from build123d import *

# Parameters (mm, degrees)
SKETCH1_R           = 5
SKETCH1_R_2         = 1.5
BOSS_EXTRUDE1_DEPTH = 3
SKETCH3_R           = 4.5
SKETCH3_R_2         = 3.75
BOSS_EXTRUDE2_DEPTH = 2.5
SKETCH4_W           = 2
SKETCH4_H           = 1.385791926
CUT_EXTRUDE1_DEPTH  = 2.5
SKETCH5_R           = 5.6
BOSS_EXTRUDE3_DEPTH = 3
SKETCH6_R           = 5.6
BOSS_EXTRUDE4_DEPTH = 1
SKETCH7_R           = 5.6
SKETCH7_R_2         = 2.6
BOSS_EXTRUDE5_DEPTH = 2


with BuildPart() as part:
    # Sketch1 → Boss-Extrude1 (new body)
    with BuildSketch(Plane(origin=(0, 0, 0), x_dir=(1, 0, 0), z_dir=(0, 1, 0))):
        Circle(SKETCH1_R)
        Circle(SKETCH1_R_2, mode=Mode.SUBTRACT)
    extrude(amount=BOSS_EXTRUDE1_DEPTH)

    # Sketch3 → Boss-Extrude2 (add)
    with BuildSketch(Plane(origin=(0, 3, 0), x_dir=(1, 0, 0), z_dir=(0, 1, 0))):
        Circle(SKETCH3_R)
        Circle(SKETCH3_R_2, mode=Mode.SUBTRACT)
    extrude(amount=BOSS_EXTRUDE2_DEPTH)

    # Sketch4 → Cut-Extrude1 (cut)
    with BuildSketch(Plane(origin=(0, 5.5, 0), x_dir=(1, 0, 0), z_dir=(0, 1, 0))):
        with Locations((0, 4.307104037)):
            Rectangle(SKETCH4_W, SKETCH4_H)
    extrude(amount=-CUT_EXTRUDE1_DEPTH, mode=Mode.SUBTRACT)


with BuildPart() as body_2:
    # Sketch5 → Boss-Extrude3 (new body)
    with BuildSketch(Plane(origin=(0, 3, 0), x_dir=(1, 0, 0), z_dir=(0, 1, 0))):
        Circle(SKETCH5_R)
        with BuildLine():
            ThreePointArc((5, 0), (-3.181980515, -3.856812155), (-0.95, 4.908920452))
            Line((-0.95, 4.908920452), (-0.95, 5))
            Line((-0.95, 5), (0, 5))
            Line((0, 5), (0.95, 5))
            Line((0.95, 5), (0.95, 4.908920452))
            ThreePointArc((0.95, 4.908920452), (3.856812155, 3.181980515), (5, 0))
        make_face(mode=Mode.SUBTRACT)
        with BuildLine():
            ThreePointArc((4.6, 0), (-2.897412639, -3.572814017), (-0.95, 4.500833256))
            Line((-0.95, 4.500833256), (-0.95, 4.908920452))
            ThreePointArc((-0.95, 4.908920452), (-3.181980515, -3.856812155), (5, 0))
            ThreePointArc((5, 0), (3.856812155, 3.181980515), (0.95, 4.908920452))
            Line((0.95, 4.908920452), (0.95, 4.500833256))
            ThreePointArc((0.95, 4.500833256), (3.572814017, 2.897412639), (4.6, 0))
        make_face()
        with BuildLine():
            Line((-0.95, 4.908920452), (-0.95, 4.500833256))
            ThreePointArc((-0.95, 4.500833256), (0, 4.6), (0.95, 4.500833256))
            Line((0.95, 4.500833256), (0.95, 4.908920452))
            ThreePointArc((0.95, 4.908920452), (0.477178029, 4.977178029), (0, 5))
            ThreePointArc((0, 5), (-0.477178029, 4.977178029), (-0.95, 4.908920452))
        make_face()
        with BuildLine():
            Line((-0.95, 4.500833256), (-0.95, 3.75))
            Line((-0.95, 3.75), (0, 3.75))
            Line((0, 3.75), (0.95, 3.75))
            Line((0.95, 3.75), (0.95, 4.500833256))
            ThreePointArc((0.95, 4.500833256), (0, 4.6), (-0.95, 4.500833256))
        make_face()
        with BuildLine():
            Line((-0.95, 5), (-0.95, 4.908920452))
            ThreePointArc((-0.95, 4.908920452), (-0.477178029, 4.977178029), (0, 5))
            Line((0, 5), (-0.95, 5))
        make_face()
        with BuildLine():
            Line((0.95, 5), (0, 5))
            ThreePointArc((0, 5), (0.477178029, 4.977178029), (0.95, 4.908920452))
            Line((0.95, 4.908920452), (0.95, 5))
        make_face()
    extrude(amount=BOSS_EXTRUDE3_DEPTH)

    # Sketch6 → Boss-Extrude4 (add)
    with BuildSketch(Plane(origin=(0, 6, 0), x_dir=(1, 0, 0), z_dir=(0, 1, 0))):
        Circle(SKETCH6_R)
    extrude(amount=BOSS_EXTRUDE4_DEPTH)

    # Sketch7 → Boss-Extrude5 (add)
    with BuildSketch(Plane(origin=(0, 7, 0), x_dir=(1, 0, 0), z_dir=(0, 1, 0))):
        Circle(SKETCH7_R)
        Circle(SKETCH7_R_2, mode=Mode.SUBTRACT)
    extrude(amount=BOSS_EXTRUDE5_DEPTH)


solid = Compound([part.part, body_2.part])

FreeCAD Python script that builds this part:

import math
import FreeCAD as App
import Part
import Sketcher

V = App.Vector
Q = App.Units.Quantity

doc = App.newDocument("Part")
body = doc.addObject("PartDesign::Body", "Body")

sketch1 = doc.addObject("Sketcher::SketchObject", "Sketch")
body.addObject(sketch1)
sketch1.AttachmentSupport = (doc.XZ_Plane, [""])
sketch1.MapMode = "FlatFace"
sketch1.addGeometry(Part.Circle(V(0, 0, 0), V(0, 0, 1), 5), False)
sketch1.addGeometry(Part.Circle(V(0, 0, 0), V(0, 0, 1), 1.5), False)
sketch1.addConstraint(Sketcher.Constraint("Coincident", 0, 3, -1, 1))
sketch1.addConstraint(Sketcher.Constraint("Coincident", 1, 3, -1, 1))
sketch1.addConstraint(Sketcher.Constraint("Diameter", 0, Q("10 mm")))
sketch1.addConstraint(Sketcher.Constraint("Diameter", 1, Q("3 mm")))
pad1 = doc.addObject("PartDesign::Pad", "Pad")
body.addObject(pad1)
pad1.Profile = sketch1
pad1.Length = 3
pad1.Reversed = True

sketch2 = doc.addObject("Sketcher::SketchObject", "Sketch001")
body.addObject(sketch2)
sketch2.AttachmentSupport = (doc.XZ_Plane, [""])
sketch2.MapMode = "FlatFace"
sketch2.AttachmentOffset = App.Placement(V(0, 0, -3), App.Rotation())
sketch2.addGeometry(Part.Circle(V(0, 0, 0), V(0, 0, 1), 4.5), False)
sketch2.addGeometry(Part.Circle(V(0, 0, 0), V(0, 0, 1), 3.8), False)
sketch2.addConstraint(Sketcher.Constraint("Coincident", 0, 3, -1, 1))
sketch2.addConstraint(Sketcher.Constraint("Coincident", 1, 3, -1, 1))
sketch2.addConstraint(Sketcher.Constraint("Diameter", 0, Q("9 mm")))
sketch2.addConstraint(Sketcher.Constraint("Diameter", 1, Q("7.5 mm")))
pad2 = doc.addObject("PartDesign::Pad", "Pad001")
body.addObject(pad2)
pad2.Profile = sketch2
pad2.Length = 2.5
pad2.Reversed = True

sketch3 = doc.addObject("Sketcher::SketchObject", "Sketch002")
body.addObject(sketch3)
sketch3.AttachmentSupport = (doc.XZ_Plane, [""])
sketch3.MapMode = "FlatFace"
sketch3.AttachmentOffset = App.Placement(V(0, 0, -5.5), App.Rotation())
sketch3.addGeometry(Part.LineSegment(V(-1, -5, 0), V(-1, -3.6, 0)), False)
sketch3.addGeometry(Part.LineSegment(V(-1, -3.6, 0), V(1, -3.6, 0)), False)
sketch3.addGeometry(Part.LineSegment(V(1, -3.6, 0), V(1, -5, 0)), False)
sketch3.addGeometry(Part.LineSegment(V(1, -5, 0), V(-1, -5, 0)), False)
sketch3.addConstraint(Sketcher.Constraint("Coincident", 0, 2, 1, 1))
sketch3.addConstraint(Sketcher.Constraint("Coincident", 1, 2, 2, 1))
sketch3.addConstraint(Sketcher.Constraint("Coincident", 2, 2, 3, 1))
sketch3.addConstraint(Sketcher.Constraint("Coincident", 3, 2, 0, 1))
sketch3.addConstraint(Sketcher.Constraint("Vertical", 0))
sketch3.addConstraint(Sketcher.Constraint("Horizontal", 1))
sketch3.addConstraint(Sketcher.Constraint("Vertical", 2))
sketch3.addConstraint(Sketcher.Constraint("Horizontal", 3))
sketch3.addConstraint(Sketcher.Constraint("DistanceX", 1, 1, 1, 2, Q("2 mm")))
sketch3.addConstraint(Sketcher.Constraint("DistanceX", 0, 2, -1, 1, Q("1 mm")))
sketch3.addConstraint(Sketcher.Constraint("DistanceY", 2, 2, -1, 1, Q("5 mm")))
sketch3.addConstraint(Sketcher.Constraint("DistanceY", 0, 1, 0, 2, Q("1.385792 mm")))
pocket1 = doc.addObject("PartDesign::Pocket", "Pocket")
body.addObject(pocket1)
pocket1.Profile = sketch3
pocket1.Length = 2.5
pocket1.Reversed = True
body2 = doc.addObject("PartDesign::Body", "Body001")

sketch4 = doc.addObject("Sketcher::SketchObject", "Sketch003")
body2.addObject(sketch4)
sketch4.AttachmentSupport = (doc.getObject("XZ_Plane001"), [""])
sketch4.MapMode = "FlatFace"
sketch4.AttachmentOffset = App.Placement(V(0, 0, -3), App.Rotation())
sketch4.addGeometry(Part.Circle(V(0, 0, 0), V(0, 0, 1), 5.6), False)
sketch4.addGeometry(Part.ArcOfCircle(Part.Circle(V(0, 0, 0), V(0, 0, 1), 4.6), math.radians(0), math.radians(258)), False)
sketch4.addGeometry(Part.LineSegment(V(-0.9, -4.5, 0), V(-0.9, -3.8, 0)), False)
sketch4.addGeometry(Part.LineSegment(V(-0.9, -3.8, 0), V(0.9, -3.8, 0)), False)
sketch4.addGeometry(Part.LineSegment(V(0.9, -3.8, 0), V(0.9, -4.5, 0)), False)
sketch4.addGeometry(Part.ArcOfCircle(Part.Circle(V(0, 0, 0), V(0, 0, 1), 4.6), math.radians(-78), math.radians(0)), False)
sketch4.addConstraint(Sketcher.Constraint("Coincident", 1, 2, 2, 1))
sketch4.addConstraint(Sketcher.Constraint("Coincident", 2, 2, 3, 1))
sketch4.addConstraint(Sketcher.Constraint("Coincident", 3, 2, 4, 1))
sketch4.addConstraint(Sketcher.Constraint("Coincident", 4, 2, 5, 1))
sketch4.addConstraint(Sketcher.Constraint("Tangent", 5, 2, 1, 1))
sketch4.addConstraint(Sketcher.Constraint("Vertical", 2))
sketch4.addConstraint(Sketcher.Constraint("Horizontal", 3))
sketch4.addConstraint(Sketcher.Constraint("Vertical", 4))
sketch4.addConstraint(Sketcher.Constraint("Coincident", 0, 3, -1, 1))
sketch4.addConstraint(Sketcher.Constraint("Coincident", 1, 3, -1, 1))
sketch4.addConstraint(Sketcher.Constraint("Equal", 1, 5))
sketch4.addConstraint(Sketcher.Constraint("PointOnObject", 5, 2, -1))
sketch4.addConstraint(Sketcher.Constraint("Horizontal", 1, 2, 4, 2))
sketch4.addConstraint(Sketcher.Constraint("Diameter", 0, Q("11.2 mm")))
sketch4.addConstraint(Sketcher.Constraint("Radius", 1, Q("4.6 mm")))
sketch4.addConstraint(Sketcher.Constraint("DistanceX", 3, 1, 3, 2, Q("1.9 mm")))
sketch4.addConstraint(Sketcher.Constraint("DistanceY", 2, 2, -1, 1, Q("3.75 mm")))
pad3 = doc.addObject("PartDesign::Pad", "Pad002")
body2.addObject(pad3)
pad3.Profile = sketch4
pad3.Length = 3
pad3.Reversed = True

sketch5 = doc.addObject("Sketcher::SketchObject", "Sketch004")
body2.addObject(sketch5)
sketch5.AttachmentSupport = (doc.getObject("XZ_Plane001"), [""])
sketch5.MapMode = "FlatFace"
sketch5.AttachmentOffset = App.Placement(V(0, 0, -6), App.Rotation())
sketch5.addGeometry(Part.Circle(V(0, 0, 0), V(0, 0, 1), 6), False)
sketch5.addConstraint(Sketcher.Constraint("Coincident", 0, 3, -1, 1))
sketch5.addConstraint(Sketcher.Constraint("Diameter", 0, Q("11.2 mm")))
pad4 = doc.addObject("PartDesign::Pad", "Pad003")
body2.addObject(pad4)
pad4.Profile = sketch5
pad4.Length = 1
pad4.Reversed = True

sketch6 = doc.addObject("Sketcher::SketchObject", "Sketch005")
body2.addObject(sketch6)
sketch6.AttachmentSupport = (doc.getObject("XZ_Plane001"), [""])
sketch6.MapMode = "FlatFace"
sketch6.AttachmentOffset = App.Placement(V(0, 0, -7), App.Rotation())
sketch6.addGeometry(Part.Circle(V(0, 0, 0), V(0, 0, 1), 5.6), False)
sketch6.addGeometry(Part.Circle(V(0, 0, 0), V(0, 0, 1), 2.6), False)
sketch6.addConstraint(Sketcher.Constraint("Coincident", 0, 3, -1, 1))
sketch6.addConstraint(Sketcher.Constraint("Coincident", 1, 3, -1, 1))
sketch6.addConstraint(Sketcher.Constraint("Diameter", 0, Q("11.2 mm")))
sketch6.addConstraint(Sketcher.Constraint("Diameter", 1, Q("5.2 mm")))
pad5 = doc.addObject("PartDesign::Pad", "Pad004")
body2.addObject(pad5)
pad5.Profile = sketch6
pad5.Length = 2
pad5.Reversed = True

doc.recompute()
